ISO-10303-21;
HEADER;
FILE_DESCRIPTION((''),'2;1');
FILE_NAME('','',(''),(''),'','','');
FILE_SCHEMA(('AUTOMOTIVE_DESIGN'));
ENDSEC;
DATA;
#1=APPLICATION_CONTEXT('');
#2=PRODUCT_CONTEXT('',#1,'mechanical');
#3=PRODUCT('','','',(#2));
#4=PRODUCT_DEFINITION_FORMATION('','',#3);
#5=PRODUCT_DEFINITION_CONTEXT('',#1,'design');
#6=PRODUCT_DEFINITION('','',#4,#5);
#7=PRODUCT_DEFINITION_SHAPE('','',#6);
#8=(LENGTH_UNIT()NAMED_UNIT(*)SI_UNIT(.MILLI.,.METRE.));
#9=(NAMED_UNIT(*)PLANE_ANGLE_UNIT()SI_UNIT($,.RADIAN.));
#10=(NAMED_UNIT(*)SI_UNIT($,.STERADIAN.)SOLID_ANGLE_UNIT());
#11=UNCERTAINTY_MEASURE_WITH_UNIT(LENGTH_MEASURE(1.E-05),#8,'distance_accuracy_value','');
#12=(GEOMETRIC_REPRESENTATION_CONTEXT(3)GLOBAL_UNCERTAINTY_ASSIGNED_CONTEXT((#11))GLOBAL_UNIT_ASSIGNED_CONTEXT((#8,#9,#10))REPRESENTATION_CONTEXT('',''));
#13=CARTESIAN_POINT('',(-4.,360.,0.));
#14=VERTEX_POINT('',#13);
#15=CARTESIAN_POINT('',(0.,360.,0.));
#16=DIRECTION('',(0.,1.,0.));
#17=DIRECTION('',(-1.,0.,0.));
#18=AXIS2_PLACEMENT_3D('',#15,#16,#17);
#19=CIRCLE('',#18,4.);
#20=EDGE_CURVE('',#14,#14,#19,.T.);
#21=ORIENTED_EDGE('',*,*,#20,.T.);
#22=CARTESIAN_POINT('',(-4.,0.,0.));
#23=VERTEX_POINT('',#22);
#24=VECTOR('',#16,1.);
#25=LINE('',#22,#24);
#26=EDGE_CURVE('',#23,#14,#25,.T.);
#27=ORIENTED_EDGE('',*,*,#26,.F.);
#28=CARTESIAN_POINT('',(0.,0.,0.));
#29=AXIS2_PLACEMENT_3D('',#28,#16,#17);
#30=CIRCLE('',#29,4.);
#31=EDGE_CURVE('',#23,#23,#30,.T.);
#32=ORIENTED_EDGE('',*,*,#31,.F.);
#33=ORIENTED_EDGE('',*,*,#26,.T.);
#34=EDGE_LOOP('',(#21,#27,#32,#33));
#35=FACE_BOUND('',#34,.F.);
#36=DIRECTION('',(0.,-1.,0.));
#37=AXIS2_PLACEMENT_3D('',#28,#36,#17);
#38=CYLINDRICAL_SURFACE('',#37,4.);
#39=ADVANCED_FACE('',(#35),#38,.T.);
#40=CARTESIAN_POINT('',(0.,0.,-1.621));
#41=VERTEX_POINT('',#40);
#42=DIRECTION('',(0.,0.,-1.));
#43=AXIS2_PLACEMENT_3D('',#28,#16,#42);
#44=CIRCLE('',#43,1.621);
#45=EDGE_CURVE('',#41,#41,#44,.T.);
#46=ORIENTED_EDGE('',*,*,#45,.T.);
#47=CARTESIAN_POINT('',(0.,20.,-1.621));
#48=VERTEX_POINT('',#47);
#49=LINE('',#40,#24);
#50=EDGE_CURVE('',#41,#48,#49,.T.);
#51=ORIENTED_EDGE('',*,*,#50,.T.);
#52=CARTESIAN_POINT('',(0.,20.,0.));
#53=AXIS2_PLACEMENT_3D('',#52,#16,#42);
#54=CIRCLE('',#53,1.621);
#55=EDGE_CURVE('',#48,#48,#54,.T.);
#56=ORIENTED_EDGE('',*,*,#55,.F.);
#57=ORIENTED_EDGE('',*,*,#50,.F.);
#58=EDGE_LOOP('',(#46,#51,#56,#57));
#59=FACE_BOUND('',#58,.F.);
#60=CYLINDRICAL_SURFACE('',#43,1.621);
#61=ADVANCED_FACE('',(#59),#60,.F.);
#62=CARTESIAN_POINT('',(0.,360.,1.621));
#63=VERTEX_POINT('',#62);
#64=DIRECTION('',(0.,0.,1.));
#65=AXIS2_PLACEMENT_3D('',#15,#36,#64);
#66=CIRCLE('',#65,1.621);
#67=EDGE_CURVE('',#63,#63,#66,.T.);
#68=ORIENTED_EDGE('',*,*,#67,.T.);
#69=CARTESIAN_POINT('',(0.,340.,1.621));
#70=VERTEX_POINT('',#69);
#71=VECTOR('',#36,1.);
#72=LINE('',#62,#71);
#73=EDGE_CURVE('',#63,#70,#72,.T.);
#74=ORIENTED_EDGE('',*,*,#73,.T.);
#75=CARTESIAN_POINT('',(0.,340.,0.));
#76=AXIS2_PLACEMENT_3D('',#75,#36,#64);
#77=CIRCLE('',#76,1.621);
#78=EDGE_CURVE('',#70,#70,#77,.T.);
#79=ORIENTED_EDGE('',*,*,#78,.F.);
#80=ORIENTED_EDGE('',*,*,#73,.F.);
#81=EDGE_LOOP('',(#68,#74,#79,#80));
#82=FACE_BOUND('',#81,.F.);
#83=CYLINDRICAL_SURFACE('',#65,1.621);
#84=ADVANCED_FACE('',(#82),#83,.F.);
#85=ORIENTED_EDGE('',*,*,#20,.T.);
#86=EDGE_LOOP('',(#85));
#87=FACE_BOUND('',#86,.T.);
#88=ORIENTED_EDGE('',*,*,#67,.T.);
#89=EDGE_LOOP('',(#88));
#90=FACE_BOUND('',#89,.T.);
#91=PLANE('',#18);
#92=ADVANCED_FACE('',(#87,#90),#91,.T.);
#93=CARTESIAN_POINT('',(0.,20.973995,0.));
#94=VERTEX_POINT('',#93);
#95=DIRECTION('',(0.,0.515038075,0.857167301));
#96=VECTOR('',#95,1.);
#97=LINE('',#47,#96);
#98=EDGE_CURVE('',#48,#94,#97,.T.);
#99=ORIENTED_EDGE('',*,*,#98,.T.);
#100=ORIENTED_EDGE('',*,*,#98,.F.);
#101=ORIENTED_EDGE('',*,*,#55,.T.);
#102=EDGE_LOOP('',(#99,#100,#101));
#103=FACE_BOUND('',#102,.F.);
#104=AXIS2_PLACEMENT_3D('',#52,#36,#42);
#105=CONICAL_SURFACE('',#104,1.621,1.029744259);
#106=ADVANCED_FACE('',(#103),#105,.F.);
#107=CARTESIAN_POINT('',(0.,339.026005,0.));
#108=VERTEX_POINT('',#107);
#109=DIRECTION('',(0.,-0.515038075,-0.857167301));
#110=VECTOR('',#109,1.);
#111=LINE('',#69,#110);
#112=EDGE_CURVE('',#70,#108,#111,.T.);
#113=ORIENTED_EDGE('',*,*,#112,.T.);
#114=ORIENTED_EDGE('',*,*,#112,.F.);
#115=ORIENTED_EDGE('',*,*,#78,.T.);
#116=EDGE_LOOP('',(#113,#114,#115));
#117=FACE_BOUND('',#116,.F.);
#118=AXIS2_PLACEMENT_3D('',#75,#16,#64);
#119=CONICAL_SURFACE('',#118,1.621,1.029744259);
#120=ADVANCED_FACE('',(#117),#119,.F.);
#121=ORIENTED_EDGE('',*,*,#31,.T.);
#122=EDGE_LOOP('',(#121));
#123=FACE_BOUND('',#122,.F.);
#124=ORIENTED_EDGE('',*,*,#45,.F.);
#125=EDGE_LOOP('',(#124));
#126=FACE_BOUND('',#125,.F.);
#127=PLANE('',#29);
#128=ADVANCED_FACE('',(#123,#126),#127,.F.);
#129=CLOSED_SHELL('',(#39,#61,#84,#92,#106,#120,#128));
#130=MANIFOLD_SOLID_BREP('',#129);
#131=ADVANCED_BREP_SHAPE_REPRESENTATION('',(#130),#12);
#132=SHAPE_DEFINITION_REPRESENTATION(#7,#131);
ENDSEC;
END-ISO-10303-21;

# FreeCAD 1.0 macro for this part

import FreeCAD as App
import Part
import Sketcher
Q = App.Units.Quantity

doc = App.newDocument("Part")
body = doc.addObject("PartDesign::Body", "Body")

sketch1 = doc.addObject("Sketcher::SketchObject", "Sketch")
body.addObject(sketch1)
sketch1.AttachmentSupport = (doc.XZ_Plane, [""])
sketch1.MapMode = "FlatFace"
sketch1.addGeometry(Part.Circle(App.Vector(0, 0, 0), App.Vector(0, 0, 1), 4), False)
sketch1.addConstraint([
    Sketcher.Constraint("Coincident", 0, 3, -1, 1),
    Sketcher.Constraint("Diameter", 0, Q("8 mm")),
])
pad1 = doc.addObject("PartDesign::Pad", "Pad")
body.addObject(pad1)
pad1.Profile = sketch1
pad1.Length = 360
pad1.Reversed = True

sketch2 = doc.addObject("Sketcher::SketchObject", "Sketch001")
body.addObject(sketch2)
sketch2.AttachmentSupport = (doc.XZ_Plane, [""])
sketch2.MapMode = "FlatFace"
sketch2.AttachmentOffset = App.Placement(App.Vector(0, 0, -360), App.Rotation())
sketch2.addGeometry(Part.Circle(App.Vector(0, 0, 0), App.Vector(0, 0, 1), 1.6), False)
sketch2.addConstraint([
    Sketcher.Constraint("Coincident", 0, 3, -1, 1),
    Sketcher.Constraint("Diameter", 0, Q("3.242 mm")),
])
doc.recompute()
hole = doc.addObject("PartDesign::Hole", "Hole")
body.addObject(hole)
hole.Profile = sketch2
hole.ThreadType = "None"
hole.Diameter = 3.242
hole.DepthType = "Dimension"
hole.Depth = 20
hole.DrillPoint = "Angled"
hole.DrillPointAngle = 118
hole.Reversed = True

sketch3 = doc.addObject("Sketcher::SketchObject", "Sketch002")
body.addObject(sketch3)
sketch3.AttachmentSupport = (doc.XZ_Plane, [""])
sketch3.MapMode = "FlatFace"
sketch3.addGeometry(Part.Circle(App.Vector(0, 0, 0), App.Vector(0, 0, 1), 1.6), False)
sketch3.addConstraint([
    Sketcher.Constraint("Coincident", 0, 3, -1, 1),
    Sketcher.Constraint("Diameter", 0, Q("3.242 mm")),
])
doc.recompute()
hole2 = doc.addObject("PartDesign::Hole", "Hole001")
body.addObject(hole2)
hole2.Profile = sketch3
hole2.ThreadType = "None"
hole2.Diameter = 3.242
hole2.DepthType = "Dimension"
hole2.Depth = 20
hole2.DrillPoint = "Angled"
hole2.DrillPointAngle = 118

doc.recompute()
